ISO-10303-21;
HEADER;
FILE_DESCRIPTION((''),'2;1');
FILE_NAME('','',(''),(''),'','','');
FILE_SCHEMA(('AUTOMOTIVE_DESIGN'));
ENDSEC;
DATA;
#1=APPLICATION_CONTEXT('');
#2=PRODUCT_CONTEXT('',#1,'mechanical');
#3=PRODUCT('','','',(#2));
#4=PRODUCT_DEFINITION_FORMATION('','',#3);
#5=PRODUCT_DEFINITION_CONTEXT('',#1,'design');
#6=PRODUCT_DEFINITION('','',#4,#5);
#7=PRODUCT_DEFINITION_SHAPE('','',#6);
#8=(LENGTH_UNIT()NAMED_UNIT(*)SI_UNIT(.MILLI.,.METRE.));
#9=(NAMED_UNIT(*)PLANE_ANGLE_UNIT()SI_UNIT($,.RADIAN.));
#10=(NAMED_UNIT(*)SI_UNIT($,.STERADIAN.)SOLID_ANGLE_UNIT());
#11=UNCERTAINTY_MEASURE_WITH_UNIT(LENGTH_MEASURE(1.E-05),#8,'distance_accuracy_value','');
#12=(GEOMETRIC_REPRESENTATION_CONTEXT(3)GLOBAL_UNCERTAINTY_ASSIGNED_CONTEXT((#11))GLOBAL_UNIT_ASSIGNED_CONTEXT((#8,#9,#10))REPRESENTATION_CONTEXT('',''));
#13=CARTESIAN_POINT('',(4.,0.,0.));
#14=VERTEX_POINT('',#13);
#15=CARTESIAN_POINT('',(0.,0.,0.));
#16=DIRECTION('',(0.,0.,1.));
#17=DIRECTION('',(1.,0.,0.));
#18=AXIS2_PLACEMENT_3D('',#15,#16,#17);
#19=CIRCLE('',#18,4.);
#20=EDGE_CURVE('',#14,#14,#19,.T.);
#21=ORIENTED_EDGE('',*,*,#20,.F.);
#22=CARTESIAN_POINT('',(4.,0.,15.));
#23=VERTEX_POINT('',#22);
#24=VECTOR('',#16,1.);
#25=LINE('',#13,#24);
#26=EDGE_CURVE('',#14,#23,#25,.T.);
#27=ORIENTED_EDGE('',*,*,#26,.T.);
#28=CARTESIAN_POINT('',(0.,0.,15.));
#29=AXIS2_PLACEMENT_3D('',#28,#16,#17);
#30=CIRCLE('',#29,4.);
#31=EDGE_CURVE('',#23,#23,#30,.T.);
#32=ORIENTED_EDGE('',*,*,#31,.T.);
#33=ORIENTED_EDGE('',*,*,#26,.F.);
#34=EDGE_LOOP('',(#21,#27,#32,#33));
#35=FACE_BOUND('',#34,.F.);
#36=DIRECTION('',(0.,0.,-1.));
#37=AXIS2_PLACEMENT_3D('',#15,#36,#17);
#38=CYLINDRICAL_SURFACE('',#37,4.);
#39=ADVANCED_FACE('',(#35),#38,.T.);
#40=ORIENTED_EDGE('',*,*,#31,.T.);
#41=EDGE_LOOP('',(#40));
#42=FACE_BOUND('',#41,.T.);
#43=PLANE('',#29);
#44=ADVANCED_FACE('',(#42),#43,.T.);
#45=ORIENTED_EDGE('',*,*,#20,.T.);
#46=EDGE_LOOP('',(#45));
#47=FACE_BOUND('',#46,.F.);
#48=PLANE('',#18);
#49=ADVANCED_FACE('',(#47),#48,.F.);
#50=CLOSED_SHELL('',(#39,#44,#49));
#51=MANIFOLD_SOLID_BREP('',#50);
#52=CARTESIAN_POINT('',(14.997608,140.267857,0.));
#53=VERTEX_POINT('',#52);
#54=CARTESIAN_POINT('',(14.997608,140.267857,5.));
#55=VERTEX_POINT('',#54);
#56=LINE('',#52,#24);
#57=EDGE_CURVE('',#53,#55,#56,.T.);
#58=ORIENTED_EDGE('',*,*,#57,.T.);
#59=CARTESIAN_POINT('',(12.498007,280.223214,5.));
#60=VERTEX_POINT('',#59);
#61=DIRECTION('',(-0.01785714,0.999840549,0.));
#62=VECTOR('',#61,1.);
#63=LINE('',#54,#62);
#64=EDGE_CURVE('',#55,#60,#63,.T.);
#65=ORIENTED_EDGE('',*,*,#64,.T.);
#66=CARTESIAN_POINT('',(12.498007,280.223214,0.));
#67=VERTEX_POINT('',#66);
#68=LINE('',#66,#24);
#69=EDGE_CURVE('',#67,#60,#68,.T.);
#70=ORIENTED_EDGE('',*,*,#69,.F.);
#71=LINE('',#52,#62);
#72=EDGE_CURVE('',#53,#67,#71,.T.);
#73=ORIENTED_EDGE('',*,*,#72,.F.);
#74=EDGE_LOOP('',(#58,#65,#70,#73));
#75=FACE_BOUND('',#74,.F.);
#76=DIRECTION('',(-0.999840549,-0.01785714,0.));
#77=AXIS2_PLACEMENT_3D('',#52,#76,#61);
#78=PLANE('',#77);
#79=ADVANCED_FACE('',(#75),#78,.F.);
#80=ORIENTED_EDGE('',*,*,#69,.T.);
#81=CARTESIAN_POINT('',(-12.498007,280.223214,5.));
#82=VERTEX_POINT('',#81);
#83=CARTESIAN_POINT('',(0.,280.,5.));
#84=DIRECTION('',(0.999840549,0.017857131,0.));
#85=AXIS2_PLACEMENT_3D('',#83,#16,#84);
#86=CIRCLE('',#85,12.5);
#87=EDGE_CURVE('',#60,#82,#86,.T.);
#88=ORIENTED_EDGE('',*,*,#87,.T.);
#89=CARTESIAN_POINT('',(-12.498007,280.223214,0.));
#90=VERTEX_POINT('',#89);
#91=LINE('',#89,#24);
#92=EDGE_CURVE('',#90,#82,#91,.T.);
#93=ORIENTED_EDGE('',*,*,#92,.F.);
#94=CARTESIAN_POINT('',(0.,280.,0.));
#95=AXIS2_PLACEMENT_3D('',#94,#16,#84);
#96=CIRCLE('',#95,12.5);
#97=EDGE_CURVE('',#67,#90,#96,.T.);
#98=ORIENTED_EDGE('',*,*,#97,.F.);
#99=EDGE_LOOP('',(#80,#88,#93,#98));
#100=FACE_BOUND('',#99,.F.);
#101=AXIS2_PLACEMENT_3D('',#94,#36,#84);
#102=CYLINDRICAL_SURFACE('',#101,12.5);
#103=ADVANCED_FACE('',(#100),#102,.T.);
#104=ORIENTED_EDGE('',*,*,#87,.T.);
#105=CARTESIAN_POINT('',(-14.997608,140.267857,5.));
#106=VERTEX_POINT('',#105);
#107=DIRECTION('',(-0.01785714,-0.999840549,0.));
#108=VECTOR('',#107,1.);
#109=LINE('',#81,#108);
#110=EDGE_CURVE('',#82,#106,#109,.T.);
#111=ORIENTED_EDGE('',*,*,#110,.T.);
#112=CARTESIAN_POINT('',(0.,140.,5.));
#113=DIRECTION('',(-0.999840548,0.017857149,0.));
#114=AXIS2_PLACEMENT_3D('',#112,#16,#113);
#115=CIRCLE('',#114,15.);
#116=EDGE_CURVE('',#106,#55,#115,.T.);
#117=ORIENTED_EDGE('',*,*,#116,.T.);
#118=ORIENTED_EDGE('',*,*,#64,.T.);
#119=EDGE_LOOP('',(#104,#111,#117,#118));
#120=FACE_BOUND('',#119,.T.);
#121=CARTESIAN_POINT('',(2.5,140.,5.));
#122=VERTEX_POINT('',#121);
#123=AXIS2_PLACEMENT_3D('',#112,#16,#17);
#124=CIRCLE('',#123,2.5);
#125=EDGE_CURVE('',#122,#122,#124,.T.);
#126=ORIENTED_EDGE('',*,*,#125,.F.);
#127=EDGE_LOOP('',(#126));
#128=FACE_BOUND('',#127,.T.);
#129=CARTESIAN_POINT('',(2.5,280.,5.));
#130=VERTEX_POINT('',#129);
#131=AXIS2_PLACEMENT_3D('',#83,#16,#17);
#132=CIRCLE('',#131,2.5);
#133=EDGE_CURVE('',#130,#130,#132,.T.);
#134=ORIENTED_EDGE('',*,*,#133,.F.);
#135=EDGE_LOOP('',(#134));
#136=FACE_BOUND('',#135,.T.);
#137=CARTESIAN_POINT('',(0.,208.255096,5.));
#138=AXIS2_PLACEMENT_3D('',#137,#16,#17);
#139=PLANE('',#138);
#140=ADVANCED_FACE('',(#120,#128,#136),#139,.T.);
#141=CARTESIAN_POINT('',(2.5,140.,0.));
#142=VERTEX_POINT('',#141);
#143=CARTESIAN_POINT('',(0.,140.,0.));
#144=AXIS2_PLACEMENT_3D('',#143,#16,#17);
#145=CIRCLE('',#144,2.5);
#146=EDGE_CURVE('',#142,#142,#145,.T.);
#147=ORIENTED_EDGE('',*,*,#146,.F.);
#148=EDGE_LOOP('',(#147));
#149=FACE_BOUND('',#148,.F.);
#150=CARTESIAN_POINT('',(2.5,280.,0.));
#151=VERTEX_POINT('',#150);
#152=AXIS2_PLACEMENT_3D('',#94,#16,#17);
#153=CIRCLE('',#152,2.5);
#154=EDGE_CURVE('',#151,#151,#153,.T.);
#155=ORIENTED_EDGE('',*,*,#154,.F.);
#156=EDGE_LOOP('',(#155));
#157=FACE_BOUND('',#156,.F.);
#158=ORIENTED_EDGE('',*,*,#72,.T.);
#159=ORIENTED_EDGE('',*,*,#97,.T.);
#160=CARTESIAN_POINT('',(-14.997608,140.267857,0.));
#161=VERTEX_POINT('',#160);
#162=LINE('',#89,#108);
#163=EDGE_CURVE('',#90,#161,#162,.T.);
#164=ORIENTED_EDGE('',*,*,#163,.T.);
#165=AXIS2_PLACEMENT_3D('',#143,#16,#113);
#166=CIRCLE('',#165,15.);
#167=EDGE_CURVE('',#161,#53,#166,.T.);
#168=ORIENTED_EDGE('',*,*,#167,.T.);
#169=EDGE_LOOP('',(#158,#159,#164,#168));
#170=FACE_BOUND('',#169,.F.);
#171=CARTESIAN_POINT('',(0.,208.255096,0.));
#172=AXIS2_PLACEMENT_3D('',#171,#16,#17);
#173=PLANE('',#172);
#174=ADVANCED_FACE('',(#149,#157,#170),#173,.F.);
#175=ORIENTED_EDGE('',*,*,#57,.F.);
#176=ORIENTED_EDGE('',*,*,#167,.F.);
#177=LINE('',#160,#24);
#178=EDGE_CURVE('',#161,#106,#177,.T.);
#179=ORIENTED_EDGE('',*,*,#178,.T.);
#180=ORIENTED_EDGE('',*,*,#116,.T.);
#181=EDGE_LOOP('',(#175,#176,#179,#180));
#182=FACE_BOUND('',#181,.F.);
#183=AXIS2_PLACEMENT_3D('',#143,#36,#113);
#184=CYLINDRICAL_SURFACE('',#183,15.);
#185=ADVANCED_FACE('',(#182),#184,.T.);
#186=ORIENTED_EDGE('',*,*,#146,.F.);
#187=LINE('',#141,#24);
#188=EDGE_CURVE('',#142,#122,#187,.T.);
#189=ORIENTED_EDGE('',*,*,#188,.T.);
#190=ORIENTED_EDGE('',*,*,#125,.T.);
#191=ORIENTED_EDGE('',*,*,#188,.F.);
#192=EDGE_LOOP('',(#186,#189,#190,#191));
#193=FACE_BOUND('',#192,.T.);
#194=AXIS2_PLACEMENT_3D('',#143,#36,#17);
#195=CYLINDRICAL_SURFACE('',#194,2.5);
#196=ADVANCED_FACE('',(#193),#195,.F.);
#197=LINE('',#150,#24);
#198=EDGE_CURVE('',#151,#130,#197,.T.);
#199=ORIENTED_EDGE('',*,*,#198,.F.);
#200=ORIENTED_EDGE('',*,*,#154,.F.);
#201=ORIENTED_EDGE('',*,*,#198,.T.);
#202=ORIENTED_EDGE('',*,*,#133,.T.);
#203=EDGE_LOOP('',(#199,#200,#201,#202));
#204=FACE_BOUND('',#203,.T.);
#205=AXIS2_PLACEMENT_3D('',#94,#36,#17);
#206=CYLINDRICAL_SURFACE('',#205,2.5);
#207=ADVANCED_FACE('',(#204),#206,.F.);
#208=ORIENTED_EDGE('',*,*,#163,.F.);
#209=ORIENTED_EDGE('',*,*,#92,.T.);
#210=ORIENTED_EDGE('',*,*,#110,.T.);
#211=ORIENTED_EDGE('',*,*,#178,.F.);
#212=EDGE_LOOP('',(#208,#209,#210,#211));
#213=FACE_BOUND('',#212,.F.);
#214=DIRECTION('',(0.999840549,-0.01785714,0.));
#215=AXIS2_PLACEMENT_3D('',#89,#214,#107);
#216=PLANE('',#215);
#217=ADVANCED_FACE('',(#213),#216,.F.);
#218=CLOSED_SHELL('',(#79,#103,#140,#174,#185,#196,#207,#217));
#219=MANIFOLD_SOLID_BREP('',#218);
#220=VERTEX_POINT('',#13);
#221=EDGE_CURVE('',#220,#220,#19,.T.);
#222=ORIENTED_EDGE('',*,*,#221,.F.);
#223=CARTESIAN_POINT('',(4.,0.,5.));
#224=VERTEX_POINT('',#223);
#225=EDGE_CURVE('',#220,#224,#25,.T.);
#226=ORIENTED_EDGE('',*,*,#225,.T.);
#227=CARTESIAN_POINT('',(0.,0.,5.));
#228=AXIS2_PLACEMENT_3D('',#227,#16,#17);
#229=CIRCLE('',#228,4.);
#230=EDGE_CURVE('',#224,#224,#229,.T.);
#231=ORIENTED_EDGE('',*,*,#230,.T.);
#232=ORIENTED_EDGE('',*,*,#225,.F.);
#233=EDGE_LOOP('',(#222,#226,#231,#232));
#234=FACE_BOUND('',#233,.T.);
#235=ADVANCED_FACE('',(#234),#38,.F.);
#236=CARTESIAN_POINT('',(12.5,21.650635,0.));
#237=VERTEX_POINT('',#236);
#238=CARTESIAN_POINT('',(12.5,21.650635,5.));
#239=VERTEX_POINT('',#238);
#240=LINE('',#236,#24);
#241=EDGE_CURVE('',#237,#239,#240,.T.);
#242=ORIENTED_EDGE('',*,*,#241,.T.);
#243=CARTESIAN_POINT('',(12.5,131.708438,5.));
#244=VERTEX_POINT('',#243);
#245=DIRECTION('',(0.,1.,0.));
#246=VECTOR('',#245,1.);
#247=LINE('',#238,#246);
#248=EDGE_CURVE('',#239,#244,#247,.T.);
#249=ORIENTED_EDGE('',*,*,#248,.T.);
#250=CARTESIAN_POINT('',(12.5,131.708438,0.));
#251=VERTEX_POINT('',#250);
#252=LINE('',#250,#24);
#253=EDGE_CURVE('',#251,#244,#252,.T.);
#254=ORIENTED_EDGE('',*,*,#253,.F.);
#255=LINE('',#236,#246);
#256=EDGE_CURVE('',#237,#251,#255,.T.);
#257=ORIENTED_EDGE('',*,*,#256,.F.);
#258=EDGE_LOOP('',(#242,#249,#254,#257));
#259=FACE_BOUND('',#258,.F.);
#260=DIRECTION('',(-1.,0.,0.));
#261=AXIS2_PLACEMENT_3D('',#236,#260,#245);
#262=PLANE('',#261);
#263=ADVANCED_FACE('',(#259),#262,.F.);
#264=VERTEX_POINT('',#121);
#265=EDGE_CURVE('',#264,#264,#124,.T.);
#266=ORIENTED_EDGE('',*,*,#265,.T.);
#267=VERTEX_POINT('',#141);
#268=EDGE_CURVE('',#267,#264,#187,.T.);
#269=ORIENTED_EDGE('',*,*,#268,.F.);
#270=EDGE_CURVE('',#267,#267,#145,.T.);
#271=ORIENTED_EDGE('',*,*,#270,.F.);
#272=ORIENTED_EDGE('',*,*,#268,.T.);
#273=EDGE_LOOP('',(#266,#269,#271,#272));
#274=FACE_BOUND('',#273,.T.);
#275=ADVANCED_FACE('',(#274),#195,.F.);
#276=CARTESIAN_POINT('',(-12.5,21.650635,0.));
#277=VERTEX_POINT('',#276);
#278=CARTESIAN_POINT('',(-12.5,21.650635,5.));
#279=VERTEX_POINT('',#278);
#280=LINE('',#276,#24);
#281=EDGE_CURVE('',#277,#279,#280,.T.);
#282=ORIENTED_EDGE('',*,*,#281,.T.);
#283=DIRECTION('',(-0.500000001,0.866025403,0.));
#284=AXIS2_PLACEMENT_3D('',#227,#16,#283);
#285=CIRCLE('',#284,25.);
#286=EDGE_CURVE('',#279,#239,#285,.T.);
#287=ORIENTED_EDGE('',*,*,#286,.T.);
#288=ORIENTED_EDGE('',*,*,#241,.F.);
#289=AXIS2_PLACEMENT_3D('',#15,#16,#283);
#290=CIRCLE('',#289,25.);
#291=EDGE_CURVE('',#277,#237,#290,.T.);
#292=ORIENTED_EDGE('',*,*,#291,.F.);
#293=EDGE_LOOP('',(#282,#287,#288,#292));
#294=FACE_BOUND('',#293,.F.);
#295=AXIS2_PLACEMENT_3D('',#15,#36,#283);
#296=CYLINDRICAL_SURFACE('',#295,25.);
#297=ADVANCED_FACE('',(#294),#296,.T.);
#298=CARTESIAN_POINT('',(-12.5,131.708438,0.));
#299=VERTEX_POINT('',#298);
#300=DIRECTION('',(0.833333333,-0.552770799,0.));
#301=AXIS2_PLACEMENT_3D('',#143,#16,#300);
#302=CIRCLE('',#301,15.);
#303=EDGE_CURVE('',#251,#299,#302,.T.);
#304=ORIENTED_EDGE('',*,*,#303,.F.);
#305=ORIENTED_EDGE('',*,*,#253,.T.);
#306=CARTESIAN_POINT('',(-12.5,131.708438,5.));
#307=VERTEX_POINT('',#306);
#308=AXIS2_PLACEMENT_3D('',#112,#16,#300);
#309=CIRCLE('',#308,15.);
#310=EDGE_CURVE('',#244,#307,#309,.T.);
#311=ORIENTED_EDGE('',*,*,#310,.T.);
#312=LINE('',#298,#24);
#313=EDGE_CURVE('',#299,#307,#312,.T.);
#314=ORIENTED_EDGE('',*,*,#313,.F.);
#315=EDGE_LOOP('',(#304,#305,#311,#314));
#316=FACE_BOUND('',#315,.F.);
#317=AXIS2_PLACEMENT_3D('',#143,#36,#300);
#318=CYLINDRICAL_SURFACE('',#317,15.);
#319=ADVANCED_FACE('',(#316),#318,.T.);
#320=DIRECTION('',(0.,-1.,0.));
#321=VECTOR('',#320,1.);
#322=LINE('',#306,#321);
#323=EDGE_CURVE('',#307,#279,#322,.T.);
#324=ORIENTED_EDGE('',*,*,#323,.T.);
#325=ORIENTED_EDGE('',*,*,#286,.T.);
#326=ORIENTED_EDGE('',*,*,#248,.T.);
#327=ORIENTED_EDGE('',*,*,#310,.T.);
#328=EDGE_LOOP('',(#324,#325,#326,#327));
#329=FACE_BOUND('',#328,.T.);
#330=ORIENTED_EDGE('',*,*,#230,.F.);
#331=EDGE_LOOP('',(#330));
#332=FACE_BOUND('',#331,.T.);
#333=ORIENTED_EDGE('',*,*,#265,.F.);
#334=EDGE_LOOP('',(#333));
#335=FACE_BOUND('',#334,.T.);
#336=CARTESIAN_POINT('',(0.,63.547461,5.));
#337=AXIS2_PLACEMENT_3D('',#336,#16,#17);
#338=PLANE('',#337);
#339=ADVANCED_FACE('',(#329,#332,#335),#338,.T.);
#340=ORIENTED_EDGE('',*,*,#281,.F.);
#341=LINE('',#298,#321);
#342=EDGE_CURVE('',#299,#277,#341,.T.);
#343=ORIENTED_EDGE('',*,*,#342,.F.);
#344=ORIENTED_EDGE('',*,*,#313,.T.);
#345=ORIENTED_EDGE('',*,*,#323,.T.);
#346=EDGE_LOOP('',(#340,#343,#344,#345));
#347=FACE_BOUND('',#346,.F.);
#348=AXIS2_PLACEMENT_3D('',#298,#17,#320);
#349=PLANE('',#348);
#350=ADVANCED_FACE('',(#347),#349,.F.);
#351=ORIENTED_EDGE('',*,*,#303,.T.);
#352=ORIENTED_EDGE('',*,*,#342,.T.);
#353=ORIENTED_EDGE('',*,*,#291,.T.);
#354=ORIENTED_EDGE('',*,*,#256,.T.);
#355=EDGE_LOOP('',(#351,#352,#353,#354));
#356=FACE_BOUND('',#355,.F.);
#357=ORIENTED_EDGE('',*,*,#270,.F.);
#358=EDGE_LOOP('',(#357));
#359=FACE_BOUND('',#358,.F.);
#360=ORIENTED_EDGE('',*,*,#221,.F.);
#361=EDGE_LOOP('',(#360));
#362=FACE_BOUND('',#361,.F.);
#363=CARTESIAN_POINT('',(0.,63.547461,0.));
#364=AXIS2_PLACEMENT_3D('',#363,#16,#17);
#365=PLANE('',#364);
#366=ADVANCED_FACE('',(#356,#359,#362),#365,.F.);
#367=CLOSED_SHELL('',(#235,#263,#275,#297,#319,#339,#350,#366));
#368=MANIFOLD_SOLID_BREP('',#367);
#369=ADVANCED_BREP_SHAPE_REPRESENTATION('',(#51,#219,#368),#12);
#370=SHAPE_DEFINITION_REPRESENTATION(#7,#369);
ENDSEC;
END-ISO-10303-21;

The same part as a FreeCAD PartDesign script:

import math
import FreeCAD as App
import Part
import Sketcher

V = App.Vector
Q = App.Units.Quantity

doc = App.newDocument("Part")
body = doc.addObject("PartDesign::Body", "Body")

# Sketch on XY plane
sketch1 = body.newObject("Sketcher::SketchObject", "Sketch")
sketch1.AttachmentSupport = (doc.getObject("XY_Plane"), [""])
sketch1.MapMode = "FlatFace"
sketch1.addGeometry(Part.LineSegment(V(-12.5, 131.708438, 0), V(-12.5, 21.650635, 0)), False)
sketch1.addGeometry(Part.ArcOfCircle(Part.Circle(V(0, 0, 0), V(0, 0, 1), 25), math.radians(120), math.radians(420)), False)
sketch1.addGeometry(Part.LineSegment(V(12.5, 21.650635, 0), V(12.5, 131.708438, 0)), False)
sketch1.addGeometry(Part.ArcOfCircle(Part.Circle(V(0, 140, 0), V(0, 0, 1), 15), math.radians(-33.55731), math.radians(213.55731)), False)
sketch1.addGeometry(Part.Circle(V(0, 0, 0), V(0, 0, 1), 4), False)
sketch1.addGeometry(Part.Circle(V(0, 140, 0), V(0, 0, 1), 2.5), False)
sketch1.addConstraint(Sketcher.Constraint("Coincident", 0, 2, 1, 1))
sketch1.addConstraint(Sketcher.Constraint("Coincident", 1, 2, 2, 1))
sketch1.addConstraint(Sketcher.Constraint("Coincident", 2, 2, 3, 1))
sketch1.addConstraint(Sketcher.Constraint("Coincident", 3, 2, 0, 1))
sketch1.addConstraint(Sketcher.Constraint("Vertical", 0))
sketch1.addConstraint(Sketcher.Constraint("Vertical", 2))
sketch1.addConstraint(Sketcher.Constraint("Coincident", 1, 3, -1, 1))
sketch1.addConstraint(Sketcher.Constraint("Coincident", 4, 3, -1, 1))
sketch1.addConstraint(Sketcher.Constraint("Coincident", 5, 3, 3, 3))
sketch1.addConstraint(Sketcher.Constraint("Symmetric", 2, 2, 3, 2, -2))
sketch1.addConstraint(Sketcher.Constraint("Diameter", 4, Q("8 mm")))
sketch1.addConstraint(Sketcher.Constraint("Diameter", 5, Q("5 mm")))
sketch1.addConstraint(Sketcher.Constraint("Radius", 1, Q("25 mm")))
sketch1.addConstraint(Sketcher.Constraint("Radius", 3, Q("15 mm")))
sketch1.addConstraint(Sketcher.Constraint("DistanceY", -1, 1, 3, 3, Q("140 mm")))
sketch1.addConstraint(Sketcher.Constraint("DistanceX", 0, 2, 1, 2, Q("25 mm")))
pad1 = body.newObject("PartDesign::Pad", "Pad")
pad1.Profile = sketch1
pad1.Length = 5
body2 = doc.addObject("PartDesign::Body", "Body001")

# Sketch on XY plane
sketch2 = body2.newObject("Sketcher::SketchObject", "Sketch001")
sketch2.AttachmentSupport = (doc.getObject("XY_Plane001"), [""])
sketch2.MapMode = "FlatFace"
sketch2.addGeometry(Part.LineSegment(V(-12.498007, 280.223214, 0), V(-14.997608, 140.267857, 0)), False)
sketch2.addGeometry(Part.ArcOfCircle(Part.Circle(V(0, 140, 0), V(0, 0, 1), 15), math.radians(178.976806), math.radians(361.023194)), False)
sketch2.addGeometry(Part.LineSegment(V(14.997608, 140.267857, 0), V(12.498007, 280.223214, 0)), False)
sketch2.addGeometry(Part.ArcOfCircle(Part.Circle(V(0, 280, 0), V(0, 0, 1), 12.5), math.radians(1.023193), math.radians(178.976807)), False)
sketch2.addGeometry(Part.Circle(V(0, 140, 0), V(0, 0, 1), 2.5), False)
sketch2.addGeometry(Part.Circle(V(0, 280, 0), V(0, 0, 1), 2.5), False)
sketch2.addConstraint(Sketcher.Constraint("Tangent", 0, 2, 1, 1))
sketch2.addConstraint(Sketcher.Constraint("Tangent", 1, 2, 2, 1))
sketch2.addConstraint(Sketcher.Constraint("Tangent", 2, 2, 3, 1))
sketch2.addConstraint(Sketcher.Constraint("Tangent", 3, 2, 0, 1))
sketch2.addConstraint(Sketcher.Constraint("Coincident", 4, 3, 1, 3))
sketch2.addConstraint(Sketcher.Constraint("Coincident", 5, 3, 3, 3))
sketch2.addConstraint(Sketcher.Constraint("Equal", 4, 5))
sketch2.addConstraint(Sketcher.Constraint("Symmetric", 0, 2, 1, 2, -2))
sketch2.addConstraint(Sketcher.Constraint("Diameter", 4, Q("5 mm")))
sketch2.addConstraint(Sketcher.Constraint("Radius", 1, Q("15 mm")))
sketch2.addConstraint(Sketcher.Constraint("Radius", 3, Q("12.5 mm")))
sketch2.addConstraint(Sketcher.Constraint("DistanceY", -1, 1, 1, 3, Q("140 mm")))
sketch2.addConstraint(Sketcher.Constraint("DistanceY", -1, 1, 3, 3, Q("280 mm")))
pad2 = body2.newObject("PartDesign::Pad", "Pad001")
pad2.Profile = sketch2
pad2.Length = 5
body3 = doc.addObject("PartDesign::Body", "Body002")

# Sketch on XY plane
sketch3 = body3.newObject("Sketcher::SketchObject", "Sketch002")
sketch3.AttachmentSupport = (doc.getObject("XY_Plane002"), [""])
sketch3.MapMode = "FlatFace"
sketch3.addGeometry(Part.Circle(V(0, 0, 0), V(0, 0, 1), 4), False)
sketch3.addConstraint(Sketcher.Constraint("Coincident", 0, 3, -1, 1))
sketch3.addConstraint(Sketcher.Constraint("Diameter", 0, Q("8 mm")))
pad3 = body3.newObject("PartDesign::Pad", "Pad002")
pad3.Profile = sketch3
pad3.Length = 15

doc.recompute()
